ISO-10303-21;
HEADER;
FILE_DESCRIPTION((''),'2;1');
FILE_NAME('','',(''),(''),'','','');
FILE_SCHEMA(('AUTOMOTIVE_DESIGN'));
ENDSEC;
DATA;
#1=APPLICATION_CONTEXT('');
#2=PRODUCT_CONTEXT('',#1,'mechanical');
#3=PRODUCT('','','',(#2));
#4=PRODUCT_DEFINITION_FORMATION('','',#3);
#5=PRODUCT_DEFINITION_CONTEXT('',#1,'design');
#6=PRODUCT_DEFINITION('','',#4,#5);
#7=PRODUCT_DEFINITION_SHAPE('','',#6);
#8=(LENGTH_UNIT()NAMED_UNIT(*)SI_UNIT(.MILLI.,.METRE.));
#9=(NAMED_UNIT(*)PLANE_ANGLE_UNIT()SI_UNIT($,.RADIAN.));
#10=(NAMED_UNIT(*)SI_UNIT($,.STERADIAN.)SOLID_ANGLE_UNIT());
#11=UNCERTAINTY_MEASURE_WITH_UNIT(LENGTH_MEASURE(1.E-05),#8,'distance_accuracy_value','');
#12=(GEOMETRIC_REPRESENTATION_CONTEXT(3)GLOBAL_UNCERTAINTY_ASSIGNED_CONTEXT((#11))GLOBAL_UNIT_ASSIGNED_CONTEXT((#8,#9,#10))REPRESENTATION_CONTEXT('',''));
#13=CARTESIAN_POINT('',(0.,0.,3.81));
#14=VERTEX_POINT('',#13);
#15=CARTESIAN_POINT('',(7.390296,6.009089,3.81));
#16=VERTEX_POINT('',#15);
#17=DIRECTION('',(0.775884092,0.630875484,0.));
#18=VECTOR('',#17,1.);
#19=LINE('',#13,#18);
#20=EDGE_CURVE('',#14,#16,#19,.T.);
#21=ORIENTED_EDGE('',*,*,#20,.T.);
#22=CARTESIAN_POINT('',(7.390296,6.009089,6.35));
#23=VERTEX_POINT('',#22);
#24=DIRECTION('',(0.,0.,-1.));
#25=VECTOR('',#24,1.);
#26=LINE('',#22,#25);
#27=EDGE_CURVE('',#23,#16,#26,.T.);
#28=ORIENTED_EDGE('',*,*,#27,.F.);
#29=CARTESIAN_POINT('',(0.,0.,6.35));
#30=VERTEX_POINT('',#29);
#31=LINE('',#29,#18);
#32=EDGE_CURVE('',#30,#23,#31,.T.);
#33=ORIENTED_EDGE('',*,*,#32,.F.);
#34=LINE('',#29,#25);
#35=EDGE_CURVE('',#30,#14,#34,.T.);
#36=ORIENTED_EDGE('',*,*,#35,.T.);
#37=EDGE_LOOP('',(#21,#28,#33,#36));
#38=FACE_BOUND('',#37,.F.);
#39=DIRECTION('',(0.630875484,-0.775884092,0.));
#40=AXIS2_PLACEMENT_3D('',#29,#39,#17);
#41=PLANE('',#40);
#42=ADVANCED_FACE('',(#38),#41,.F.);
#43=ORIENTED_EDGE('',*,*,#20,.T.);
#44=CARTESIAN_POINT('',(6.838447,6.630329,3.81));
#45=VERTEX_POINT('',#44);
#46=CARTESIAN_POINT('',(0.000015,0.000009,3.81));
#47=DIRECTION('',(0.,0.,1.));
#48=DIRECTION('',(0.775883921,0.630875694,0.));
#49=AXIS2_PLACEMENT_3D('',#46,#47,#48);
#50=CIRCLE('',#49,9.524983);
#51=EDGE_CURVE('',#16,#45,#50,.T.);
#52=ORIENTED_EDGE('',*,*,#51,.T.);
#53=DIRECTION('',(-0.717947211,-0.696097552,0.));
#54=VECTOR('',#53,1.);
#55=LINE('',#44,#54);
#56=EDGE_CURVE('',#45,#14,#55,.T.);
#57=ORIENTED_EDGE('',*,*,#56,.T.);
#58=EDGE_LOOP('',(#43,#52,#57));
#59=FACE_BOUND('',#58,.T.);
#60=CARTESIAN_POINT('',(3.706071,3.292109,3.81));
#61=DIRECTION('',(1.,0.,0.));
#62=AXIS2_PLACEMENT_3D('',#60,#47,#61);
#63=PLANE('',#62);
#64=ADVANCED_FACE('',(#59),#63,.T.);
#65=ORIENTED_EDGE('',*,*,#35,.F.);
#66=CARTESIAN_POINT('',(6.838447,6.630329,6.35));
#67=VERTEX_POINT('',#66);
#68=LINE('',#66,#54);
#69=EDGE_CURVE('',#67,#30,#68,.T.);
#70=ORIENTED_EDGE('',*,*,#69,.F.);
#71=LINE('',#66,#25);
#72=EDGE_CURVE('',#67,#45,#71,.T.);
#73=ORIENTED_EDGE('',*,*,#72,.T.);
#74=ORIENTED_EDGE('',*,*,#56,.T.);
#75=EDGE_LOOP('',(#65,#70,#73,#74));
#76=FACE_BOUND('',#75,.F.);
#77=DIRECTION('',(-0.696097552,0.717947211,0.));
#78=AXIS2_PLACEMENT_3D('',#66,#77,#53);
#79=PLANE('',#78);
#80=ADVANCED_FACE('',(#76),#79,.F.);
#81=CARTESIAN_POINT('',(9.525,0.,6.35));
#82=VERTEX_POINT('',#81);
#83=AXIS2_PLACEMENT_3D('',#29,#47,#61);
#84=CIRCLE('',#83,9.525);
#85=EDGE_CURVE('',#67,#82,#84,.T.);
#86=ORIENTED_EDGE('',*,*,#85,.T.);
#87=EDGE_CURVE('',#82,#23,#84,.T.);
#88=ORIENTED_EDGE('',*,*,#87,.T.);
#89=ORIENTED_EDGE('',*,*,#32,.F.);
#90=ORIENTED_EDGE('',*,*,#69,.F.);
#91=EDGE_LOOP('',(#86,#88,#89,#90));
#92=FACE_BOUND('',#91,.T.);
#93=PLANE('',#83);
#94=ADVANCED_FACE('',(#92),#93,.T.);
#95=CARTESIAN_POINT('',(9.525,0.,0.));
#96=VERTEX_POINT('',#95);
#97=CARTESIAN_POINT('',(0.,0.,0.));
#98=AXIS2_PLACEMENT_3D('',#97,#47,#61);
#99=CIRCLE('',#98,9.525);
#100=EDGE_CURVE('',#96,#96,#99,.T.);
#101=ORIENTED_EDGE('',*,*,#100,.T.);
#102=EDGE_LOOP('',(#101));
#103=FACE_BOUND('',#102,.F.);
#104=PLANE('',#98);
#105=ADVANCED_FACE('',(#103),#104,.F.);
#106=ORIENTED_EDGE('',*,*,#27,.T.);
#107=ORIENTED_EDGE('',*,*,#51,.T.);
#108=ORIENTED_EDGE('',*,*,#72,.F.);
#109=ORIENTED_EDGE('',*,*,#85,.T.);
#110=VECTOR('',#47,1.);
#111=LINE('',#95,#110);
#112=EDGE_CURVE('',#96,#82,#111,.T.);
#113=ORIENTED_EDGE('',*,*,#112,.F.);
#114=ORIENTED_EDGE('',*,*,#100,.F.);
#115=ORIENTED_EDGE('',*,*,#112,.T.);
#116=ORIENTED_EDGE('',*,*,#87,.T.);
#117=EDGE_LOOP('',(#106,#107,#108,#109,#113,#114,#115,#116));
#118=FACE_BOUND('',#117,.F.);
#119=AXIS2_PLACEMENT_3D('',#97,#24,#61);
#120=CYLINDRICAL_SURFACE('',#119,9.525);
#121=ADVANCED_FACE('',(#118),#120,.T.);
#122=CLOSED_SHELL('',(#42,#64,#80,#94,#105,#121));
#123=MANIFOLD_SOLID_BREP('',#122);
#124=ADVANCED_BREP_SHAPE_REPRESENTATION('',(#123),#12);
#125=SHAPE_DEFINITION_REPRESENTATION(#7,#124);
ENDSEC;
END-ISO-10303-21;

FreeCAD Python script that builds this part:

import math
import FreeCAD as App
import Part
import Sketcher

V = App.Vector
Q = App.Units.Quantity

doc = App.newDocument("Part")
body = doc.addObject("PartDesign::Body", "Body")

sketch1 = doc.addObject("Sketcher::SketchObject", "Sketch")
body.addObject(sketch1)
sketch1.AttachmentSupport = (doc.XY_Plane, [""])
sketch1.MapMode = "FlatFace"
sketch1.addGeometry(Part.Circle(V(0, 0, 0), V(0, 0, 1), 10), False)
sketch1.addConstraint(Sketcher.Constraint("Coincident", 0, 3, -1, 1))
sketch1.addConstraint(Sketcher.Constraint("Diameter", 0, Q("0.75 in")))
pad1 = doc.addObject("PartDesign::Pad", "Pad")
body.addObject(pad1)
pad1.Profile = sketch1
pad1.Length = Q("0.25 in")

sketch2 = doc.addObject("Sketcher::SketchObject", "Sketch001")
body.addObject(sketch2)
sketch2.AttachmentSupport = (doc.XY_Plane, [""])
sketch2.MapMode = "FlatFace"
sketch2.AttachmentOffset = App.Placement(V(0, 0, 0.25 * 25.4), App.Rotation())
sketch2.addGeometry(Part.ArcOfCircle(Part.Circle(V(0, 0, 0), V(0, 0, 1), 9.5), math.radians(39.11), math.radians(44.11)), False)
sketch2.addGeometry(Part.LineSegment(V(6.8, 6.6, 0), V(0, 0, 0)), False)
sketch2.addGeometry(Part.LineSegment(V(0, 0, 0), V(7.4, 6, 0)), False)
sketch2.addConstraint(Sketcher.Constraint("Coincident", 0, 2, 1, 1))
sketch2.addConstraint(Sketcher.Constraint("Coincident", 1, 2, 2, 1))
sketch2.addConstraint(Sketcher.Constraint("Coincident", 2, 2, 0, 1))
sketch2.addConstraint(Sketcher.Constraint("Coincident", 1, 2, -1, 1))
sketch2.addConstraint(Sketcher.Constraint("Equal", 1, 2))
sketch2.addConstraint(Sketcher.Constraint("Distance", 1, Q("0.375 in")))
sketch2.addConstraint(Sketcher.Constraint("Radius", 0, Q("9.524983 mm")))
sketch2.addConstraint(Sketcher.Constraint("DistanceY", -1, 1, 0, 2, Q("6.630329 mm")))
sketch2.addConstraint(Sketcher.Constraint("DistanceY", -1, 1, 2, 2, Q("6.009089 mm")))
pocket1 = doc.addObject("PartDesign::Pocket", "Pocket")
body.addObject(pocket1)
pocket1.Profile = sketch2
pocket1.Length = Q("0.1 in")

doc.recompute()
